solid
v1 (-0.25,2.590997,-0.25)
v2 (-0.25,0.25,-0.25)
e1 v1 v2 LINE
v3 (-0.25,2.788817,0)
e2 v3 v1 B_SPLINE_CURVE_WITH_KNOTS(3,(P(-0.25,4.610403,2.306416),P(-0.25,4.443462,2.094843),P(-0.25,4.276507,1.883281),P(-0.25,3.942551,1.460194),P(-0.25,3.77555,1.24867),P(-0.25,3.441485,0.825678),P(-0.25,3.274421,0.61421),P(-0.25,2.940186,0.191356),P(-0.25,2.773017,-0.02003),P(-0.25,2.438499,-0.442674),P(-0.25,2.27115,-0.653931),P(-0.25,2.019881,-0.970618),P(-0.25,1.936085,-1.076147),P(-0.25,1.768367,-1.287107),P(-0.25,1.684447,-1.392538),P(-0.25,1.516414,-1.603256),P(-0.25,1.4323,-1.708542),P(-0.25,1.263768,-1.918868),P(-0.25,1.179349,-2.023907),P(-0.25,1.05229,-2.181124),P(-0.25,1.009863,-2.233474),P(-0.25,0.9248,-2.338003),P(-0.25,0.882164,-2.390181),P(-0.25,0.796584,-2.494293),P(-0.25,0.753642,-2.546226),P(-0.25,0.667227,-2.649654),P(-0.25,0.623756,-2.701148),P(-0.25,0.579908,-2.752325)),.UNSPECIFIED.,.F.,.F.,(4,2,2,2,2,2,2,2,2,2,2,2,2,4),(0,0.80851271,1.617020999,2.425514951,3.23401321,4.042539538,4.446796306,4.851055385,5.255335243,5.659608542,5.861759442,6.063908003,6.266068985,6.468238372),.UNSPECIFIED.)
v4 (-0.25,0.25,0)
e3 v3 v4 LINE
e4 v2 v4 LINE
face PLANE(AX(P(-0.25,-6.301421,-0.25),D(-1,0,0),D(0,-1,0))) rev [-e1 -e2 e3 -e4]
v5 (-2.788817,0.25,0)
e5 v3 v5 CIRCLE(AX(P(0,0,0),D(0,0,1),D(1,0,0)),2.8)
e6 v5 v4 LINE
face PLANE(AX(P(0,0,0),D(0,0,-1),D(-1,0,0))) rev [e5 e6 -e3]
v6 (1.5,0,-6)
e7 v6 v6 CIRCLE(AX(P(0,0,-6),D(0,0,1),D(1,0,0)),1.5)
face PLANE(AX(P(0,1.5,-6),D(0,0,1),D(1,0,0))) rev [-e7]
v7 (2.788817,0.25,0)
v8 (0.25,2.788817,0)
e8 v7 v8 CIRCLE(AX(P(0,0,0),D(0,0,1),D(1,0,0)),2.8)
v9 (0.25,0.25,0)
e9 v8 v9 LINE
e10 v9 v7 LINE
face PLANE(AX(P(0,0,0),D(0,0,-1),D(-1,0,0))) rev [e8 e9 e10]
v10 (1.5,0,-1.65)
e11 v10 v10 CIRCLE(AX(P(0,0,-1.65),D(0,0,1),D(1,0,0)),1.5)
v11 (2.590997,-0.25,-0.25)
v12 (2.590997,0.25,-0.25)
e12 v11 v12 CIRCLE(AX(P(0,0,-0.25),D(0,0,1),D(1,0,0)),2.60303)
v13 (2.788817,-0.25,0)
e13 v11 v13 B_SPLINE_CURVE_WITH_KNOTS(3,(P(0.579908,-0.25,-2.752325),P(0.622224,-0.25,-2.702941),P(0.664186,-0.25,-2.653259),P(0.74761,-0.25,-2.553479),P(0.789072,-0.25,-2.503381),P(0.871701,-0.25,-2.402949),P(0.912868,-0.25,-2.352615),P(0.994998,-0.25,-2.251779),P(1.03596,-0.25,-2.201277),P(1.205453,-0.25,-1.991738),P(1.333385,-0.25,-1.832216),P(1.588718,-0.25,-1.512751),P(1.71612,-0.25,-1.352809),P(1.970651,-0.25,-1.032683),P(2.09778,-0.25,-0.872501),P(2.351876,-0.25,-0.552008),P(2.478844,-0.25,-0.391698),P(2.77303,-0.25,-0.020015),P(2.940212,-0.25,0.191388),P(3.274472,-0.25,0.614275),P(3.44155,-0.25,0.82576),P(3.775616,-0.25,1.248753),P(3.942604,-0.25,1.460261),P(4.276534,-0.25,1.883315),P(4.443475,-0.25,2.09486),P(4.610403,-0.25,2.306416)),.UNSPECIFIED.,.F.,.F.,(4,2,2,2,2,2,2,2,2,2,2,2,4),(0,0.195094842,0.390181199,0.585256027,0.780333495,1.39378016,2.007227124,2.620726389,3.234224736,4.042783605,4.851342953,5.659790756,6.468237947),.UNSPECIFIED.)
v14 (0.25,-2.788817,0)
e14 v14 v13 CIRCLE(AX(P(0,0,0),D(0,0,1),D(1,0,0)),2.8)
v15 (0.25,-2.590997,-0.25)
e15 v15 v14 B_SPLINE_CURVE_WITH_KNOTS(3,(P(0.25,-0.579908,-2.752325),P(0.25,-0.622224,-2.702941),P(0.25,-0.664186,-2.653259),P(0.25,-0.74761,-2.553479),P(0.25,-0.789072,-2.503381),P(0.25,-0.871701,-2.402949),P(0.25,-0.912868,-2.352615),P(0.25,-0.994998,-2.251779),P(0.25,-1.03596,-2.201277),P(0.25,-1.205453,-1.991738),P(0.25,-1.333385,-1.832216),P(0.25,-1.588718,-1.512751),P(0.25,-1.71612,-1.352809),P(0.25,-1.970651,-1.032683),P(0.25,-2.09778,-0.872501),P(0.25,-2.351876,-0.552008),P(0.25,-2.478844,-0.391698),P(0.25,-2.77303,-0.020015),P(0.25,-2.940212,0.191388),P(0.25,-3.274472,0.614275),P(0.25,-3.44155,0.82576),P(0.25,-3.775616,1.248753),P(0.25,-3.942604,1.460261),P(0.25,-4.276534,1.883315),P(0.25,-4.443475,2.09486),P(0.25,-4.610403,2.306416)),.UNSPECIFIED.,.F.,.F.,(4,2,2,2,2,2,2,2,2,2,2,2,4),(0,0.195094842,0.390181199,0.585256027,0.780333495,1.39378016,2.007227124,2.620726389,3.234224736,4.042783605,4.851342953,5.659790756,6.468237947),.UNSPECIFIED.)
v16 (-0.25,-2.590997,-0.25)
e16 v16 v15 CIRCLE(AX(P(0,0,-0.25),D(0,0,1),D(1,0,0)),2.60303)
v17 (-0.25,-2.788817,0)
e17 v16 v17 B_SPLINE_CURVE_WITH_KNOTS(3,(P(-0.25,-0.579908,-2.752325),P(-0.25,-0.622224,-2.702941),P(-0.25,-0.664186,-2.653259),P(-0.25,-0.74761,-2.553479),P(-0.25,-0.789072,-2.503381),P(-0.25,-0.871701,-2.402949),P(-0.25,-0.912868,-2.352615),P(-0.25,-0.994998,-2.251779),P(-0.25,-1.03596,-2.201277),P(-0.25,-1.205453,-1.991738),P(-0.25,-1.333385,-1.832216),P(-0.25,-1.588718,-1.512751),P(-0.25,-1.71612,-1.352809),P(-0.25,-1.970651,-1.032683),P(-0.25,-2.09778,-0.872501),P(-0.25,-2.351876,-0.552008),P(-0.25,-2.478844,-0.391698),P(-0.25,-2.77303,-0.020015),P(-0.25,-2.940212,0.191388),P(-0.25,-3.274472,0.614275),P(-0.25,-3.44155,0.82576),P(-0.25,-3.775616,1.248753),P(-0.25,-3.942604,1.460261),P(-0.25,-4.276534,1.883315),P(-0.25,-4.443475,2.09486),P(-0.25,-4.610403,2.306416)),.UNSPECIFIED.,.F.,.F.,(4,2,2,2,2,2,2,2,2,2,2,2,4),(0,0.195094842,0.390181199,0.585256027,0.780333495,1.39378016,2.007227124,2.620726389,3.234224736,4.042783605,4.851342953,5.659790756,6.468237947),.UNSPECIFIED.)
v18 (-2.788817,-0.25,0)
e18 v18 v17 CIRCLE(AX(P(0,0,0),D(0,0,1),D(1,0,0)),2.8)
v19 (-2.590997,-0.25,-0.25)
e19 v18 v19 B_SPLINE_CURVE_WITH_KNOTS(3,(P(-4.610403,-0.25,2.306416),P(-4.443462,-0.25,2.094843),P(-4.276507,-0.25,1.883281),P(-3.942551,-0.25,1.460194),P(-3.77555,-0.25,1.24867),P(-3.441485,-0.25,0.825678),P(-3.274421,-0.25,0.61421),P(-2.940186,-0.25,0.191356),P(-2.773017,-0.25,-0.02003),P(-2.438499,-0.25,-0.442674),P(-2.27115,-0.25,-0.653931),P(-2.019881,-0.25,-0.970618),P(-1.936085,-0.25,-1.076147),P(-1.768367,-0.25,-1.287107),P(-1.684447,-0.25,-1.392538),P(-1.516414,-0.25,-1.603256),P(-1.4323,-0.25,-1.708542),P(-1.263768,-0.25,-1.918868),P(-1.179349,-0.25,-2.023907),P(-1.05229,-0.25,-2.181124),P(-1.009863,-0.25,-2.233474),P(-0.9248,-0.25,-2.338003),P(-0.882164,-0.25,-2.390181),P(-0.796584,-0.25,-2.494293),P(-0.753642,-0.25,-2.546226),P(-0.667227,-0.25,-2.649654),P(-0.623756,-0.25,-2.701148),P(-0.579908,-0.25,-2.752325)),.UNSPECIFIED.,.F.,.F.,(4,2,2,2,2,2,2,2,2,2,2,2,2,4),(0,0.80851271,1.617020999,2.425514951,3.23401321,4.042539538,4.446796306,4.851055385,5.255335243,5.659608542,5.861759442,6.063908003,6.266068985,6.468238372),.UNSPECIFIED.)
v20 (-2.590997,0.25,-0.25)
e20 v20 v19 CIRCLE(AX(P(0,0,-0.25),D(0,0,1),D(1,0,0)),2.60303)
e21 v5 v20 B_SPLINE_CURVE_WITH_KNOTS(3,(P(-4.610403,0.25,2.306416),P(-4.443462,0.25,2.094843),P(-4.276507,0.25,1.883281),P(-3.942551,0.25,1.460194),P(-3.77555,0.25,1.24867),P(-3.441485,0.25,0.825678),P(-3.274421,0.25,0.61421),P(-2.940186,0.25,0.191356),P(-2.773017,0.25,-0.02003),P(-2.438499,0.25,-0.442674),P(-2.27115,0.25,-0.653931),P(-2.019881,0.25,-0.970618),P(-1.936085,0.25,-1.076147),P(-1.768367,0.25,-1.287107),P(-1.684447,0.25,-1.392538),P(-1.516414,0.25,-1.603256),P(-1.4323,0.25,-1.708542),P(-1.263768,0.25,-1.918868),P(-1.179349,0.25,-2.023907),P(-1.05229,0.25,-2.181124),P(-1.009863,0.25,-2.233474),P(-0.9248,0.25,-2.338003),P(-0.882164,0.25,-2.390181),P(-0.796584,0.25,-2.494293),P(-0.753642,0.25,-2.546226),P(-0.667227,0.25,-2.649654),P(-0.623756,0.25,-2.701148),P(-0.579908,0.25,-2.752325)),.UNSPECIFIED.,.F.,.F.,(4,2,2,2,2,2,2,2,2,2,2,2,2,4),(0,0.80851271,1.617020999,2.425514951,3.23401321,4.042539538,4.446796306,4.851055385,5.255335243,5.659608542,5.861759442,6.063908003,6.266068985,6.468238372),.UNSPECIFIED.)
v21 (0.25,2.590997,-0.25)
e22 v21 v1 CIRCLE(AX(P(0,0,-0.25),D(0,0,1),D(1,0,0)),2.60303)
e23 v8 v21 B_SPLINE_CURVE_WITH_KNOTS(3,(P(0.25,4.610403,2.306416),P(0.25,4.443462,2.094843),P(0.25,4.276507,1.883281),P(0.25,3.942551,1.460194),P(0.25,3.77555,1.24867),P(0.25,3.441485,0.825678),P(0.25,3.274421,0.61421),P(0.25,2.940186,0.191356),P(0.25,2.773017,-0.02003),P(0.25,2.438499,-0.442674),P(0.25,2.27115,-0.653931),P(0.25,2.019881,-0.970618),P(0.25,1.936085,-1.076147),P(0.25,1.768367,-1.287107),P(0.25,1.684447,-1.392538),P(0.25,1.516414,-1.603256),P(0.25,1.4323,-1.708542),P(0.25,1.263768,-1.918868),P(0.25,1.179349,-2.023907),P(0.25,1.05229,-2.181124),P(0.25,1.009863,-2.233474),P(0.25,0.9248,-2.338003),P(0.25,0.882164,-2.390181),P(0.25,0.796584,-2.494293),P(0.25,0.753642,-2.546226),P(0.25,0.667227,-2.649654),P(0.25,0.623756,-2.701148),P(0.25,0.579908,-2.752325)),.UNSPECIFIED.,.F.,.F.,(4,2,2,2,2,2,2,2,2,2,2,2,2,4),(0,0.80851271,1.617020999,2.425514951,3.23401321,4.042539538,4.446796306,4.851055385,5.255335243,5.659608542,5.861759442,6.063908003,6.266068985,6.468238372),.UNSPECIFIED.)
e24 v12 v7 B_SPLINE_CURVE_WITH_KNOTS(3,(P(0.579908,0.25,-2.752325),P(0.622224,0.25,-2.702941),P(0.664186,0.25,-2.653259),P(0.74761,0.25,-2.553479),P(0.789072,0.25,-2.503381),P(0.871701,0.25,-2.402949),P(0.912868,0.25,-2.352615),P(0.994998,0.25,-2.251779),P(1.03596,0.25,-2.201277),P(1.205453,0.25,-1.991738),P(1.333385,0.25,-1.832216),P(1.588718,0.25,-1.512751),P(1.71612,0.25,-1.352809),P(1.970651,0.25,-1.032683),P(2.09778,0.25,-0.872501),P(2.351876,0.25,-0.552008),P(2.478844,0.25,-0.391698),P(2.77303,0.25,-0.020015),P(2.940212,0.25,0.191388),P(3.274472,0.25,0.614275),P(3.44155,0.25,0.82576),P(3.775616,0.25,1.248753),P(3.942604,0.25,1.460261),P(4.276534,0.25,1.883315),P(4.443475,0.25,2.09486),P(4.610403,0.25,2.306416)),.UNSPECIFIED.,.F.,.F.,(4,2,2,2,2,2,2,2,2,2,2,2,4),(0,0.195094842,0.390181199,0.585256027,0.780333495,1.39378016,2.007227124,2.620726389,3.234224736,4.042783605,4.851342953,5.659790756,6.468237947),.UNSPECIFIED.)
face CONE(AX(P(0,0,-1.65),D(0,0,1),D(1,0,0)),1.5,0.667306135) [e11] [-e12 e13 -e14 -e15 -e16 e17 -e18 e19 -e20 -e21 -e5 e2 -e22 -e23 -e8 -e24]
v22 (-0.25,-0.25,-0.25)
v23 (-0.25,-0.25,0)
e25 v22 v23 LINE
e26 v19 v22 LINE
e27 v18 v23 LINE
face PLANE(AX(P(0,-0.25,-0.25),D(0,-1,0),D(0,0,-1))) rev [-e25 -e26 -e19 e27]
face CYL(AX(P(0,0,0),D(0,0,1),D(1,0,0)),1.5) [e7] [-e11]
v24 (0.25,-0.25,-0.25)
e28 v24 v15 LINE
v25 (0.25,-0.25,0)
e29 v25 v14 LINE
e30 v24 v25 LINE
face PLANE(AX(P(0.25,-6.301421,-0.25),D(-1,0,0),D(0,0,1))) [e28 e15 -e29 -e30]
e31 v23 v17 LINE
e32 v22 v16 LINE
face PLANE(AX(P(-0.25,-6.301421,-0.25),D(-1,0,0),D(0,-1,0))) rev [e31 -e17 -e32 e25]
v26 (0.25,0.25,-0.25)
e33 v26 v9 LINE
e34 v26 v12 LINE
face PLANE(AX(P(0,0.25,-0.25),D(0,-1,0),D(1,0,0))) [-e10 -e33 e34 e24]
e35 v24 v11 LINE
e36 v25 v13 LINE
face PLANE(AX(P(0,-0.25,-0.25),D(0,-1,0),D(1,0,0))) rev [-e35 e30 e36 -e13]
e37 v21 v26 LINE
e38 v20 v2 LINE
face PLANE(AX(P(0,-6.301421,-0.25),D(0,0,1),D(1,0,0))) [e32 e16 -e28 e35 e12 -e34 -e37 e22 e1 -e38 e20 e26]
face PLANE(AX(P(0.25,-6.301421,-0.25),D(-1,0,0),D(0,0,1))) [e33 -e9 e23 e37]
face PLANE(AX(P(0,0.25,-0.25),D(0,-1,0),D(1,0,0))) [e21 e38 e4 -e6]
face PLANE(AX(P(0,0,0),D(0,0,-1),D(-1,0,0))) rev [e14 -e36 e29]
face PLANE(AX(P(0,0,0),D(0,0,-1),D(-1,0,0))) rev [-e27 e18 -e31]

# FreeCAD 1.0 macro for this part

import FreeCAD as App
import Part
import Sketcher
Q = App.Units.Quantity

doc = App.newDocument("Part")
params = doc.addObject("Spreadsheet::Sheet", "Params")
for row, (alias, value) in enumerate([
    ("sketch1_height", "6 mm"),
    ("sketch1_width", "2.8 mm"),
    ("sketch1_width2", "1.5 mm"),
    ("sketch1_height2", "4.35 mm"),
    ("revolution_angle", "360 deg"),
    ("sketch2_width", "2.55 mm"),
    ("pocket1_length", "0.25 mm"),
], start=1):
    params.set(f"A{row}", alias)
    params.set(f"B{row}", "=" + value)
    params.setAlias(f"B{row}", alias)

body = doc.addObject("PartDesign::Body", "Body")

sketch1 = body.newObject("Sketcher::SketchObject", "Sketch")
sketch1.AttachmentSupport = (doc.getObject("YZ_Plane"), [""])
sketch1.MapMode = "FlatFace"
sketch1.addGeometry(Part.LineSegment(App.Vector(2.8, 0, 0), App.Vector(0, 0, 0)), False)
sketch1.addGeometry(Part.LineSegment(App.Vector(0, 0, 0), App.Vector(0, -6, 0)), False)
sketch1.addGeometry(Part.LineSegment(App.Vector(0, -6, 0), App.Vector(1.5, -6, 0)), False)
sketch1.addGeometry(Part.LineSegment(App.Vector(1.5, -6, 0), App.Vector(1.5, -1.6, 0)), False)
sketch1.addGeometry(Part.LineSegment(App.Vector(1.5, -1.6, 0), App.Vector(2.8, 0, 0)), False)
sketch1.addConstraint(Sketcher.Constraint("Coincident", 0, 2, 1, 1))
sketch1.addConstraint(Sketcher.Constraint("Coincident", 1, 2, 2, 1))
sketch1.addConstraint(Sketcher.Constraint("Coincident", 2, 2, 3, 1))
sketch1.addConstraint(Sketcher.Constraint("Coincident", 3, 2, 4, 1))
sketch1.addConstraint(Sketcher.Constraint("Coincident", 4, 2, 0, 1))
sketch1.addConstraint(Sketcher.Constraint("Horizontal", 0))
sketch1.addConstraint(Sketcher.Constraint("Vertical", 1))
sketch1.addConstraint(Sketcher.Constraint("Horizontal", 2))
sketch1.addConstraint(Sketcher.Constraint("Vertical", 3))
sketch1.addConstraint(Sketcher.Constraint("Coincident", 0, 2, -1, 1))
sketch1.addConstraint(Sketcher.Constraint("DistanceY", 1, 2, 1, 1, Q("6 mm")))
sketch1.addConstraint(Sketcher.Constraint("DistanceX", 0, 2, 0, 1, Q("2.8 mm")))
sketch1.addConstraint(Sketcher.Constraint("DistanceX", 2, 1, 2, 2, Q("1.5 mm")))
sketch1.addConstraint(Sketcher.Constraint("DistanceY", 3, 1, 3, 2, Q("4.35 mm")))
sketch1.setExpression("Constraints[10]", "Params.sketch1_height")
sketch1.setExpression("Constraints[11]", "Params.sketch1_width")
sketch1.setExpression("Constraints[12]", "Params.sketch1_width2")
sketch1.setExpression("Constraints[13]", "Params.sketch1_height2")
revolution = body.newObject("PartDesign::Revolution", "Revolution")
revolution.Profile = sketch1
revolution.ReferenceAxis = (sketch1, ["V_Axis"])
revolution.setExpression("Angle", "Params.revolution_angle")

sketch2 = body.newObject("Sketcher::SketchObject", "Sketch001")
sketch2.AttachmentSupport = (doc.getObject("XY_Plane"), [""])
sketch2.MapMode = "FlatFace"
sketch2.addGeometry(Part.LineSegment(App.Vector(-0.25, 2.8, 0), App.Vector(-0.25, 0.25, 0)), False)
sketch2.addGeometry(Part.LineSegment(App.Vector(-0.25, 0.25, 0), App.Vector(-2.8, 0.25, 0)), False)
sketch2.addGeometry(Part.LineSegment(App.Vector(-2.8, 0.25, 0), App.Vector(-3.26, -0.03, 0)), False)
sketch2.addGeometry(Part.LineSegment(App.Vector(-3.26, -0.03, 0), App.Vector(-2.8, -0.25, 0)), False)
sketch2.addGeometry(Part.LineSegment(App.Vector(-2.8, -0.25, 0), App.Vector(-0.25, -0.25, 0)), False)
sketch2.addGeometry(Part.LineSegment(App.Vector(-0.25, -0.25, 0), App.Vector(-0.25, -2.8, 0)), False)
sketch2.addGeometry(Part.LineSegment(App.Vector(-0.25, -2.8, 0), App.Vector(0.12, -3.42, 0)), False)
sketch2.addGeometry(Part.LineSegment(App.Vector(0.12, -3.42, 0), App.Vector(0.25, -2.8, 0)), False)
sketch2.addGeometry(Part.LineSegment(App.Vector(0.25, -2.8, 0), App.Vector(0.25, -0.25, 0)), False)
sketch2.addGeometry(Part.LineSegment(App.Vector(0.25, -0.25, 0), App.Vector(2.8, -0.25, 0)), False)
sketch2.addGeometry(Part.LineSegment(App.Vector(2.8, -0.25, 0), App.Vector(3.21, 0, 0)), False)
sketch2.addGeometry(Part.LineSegment(App.Vector(3.21, 0, 0), App.Vector(2.8, 0.25, 0)), False)
sketch2.addGeometry(Part.LineSegment(App.Vector(2.8, 0.25, 0), App.Vector(0.25, 0.25, 0)), False)
sketch2.addGeometry(Part.LineSegment(App.Vector(0.25, 0.25, 0), App.Vector(0.25, 2.8, 0)), False)
sketch2.addGeometry(Part.LineSegment(App.Vector(0.25, 2.8, 0), App.Vector(0, 3.1, 0)), False)
sketch2.addGeometry(Part.LineSegment(App.Vector(0, 3.1, 0), App.Vector(-0.25, 2.8, 0)), False)
sketch2.addConstraint(Sketcher.Constraint("Coincident", 0, 2, 1, 1))
sketch2.addConstraint(Sketcher.Constraint("Coincident", 1, 2, 2, 1))
sketch2.addConstraint(Sketcher.Constraint("Coincident", 2, 2, 3, 1))
sketch2.addConstraint(Sketcher.Constraint("Coincident", 3, 2, 4, 1))
sketch2.addConstraint(Sketcher.Constraint("Coincident", 4, 2, 5, 1))
sketch2.addConstraint(Sketcher.Constraint("Coincident", 5, 2, 6, 1))
sketch2.addConstraint(Sketcher.Constraint("Coincident", 6, 2, 7, 1))
sketch2.addConstraint(Sketcher.Constraint("Coincident", 7, 2, 8, 1))
sketch2.addConstraint(Sketcher.Constraint("Coincident", 8, 2, 9, 1))
sketch2.addConstraint(Sketcher.Constraint("Coincident", 9, 2, 10, 1))
sketch2.addConstraint(Sketcher.Constraint("Coincident", 10, 2, 11, 1))
sketch2.addConstraint(Sketcher.Constraint("Coincident", 11, 2, 12, 1))
sketch2.addConstraint(Sketcher.Constraint("Coincident", 12, 2, 13, 1))
sketch2.addConstraint(Sketcher.Constraint("Coincident", 13, 2, 14, 1))
sketch2.addConstraint(Sketcher.Constraint("Coincident", 14, 2, 15, 1))
sketch2.addConstraint(Sketcher.Constraint("Coincident", 15, 2, 0, 1))
sketch2.addConstraint(Sketcher.Constraint("Vertical", 0))
sketch2.addConstraint(Sketcher.Constraint("Horizontal", 1))
sketch2.addConstraint(Sketcher.Constraint("Horizontal", 4))
sketch2.addConstraint(Sketcher.Constraint("Vertical", 5))
sketch2.addConstraint(Sketcher.Constraint("Vertical", 8))
sketch2.addConstraint(Sketcher.Constraint("Horizontal", 9))
sketch2.addConstraint(Sketcher.Constraint("Horizontal", 12))
sketch2.addConstraint(Sketcher.Constraint("Vertical", 13))
sketch2.addConstraint(Sketcher.Constraint("Symmetric", 0, 2, 8, 2, -1, 1))
sketch2.addConstraint(Sketcher.Constraint("Symmetric", 3, 2, 11, 2, -1, 1))
sketch2.addConstraint(Sketcher.Constraint("Symmetric", 5, 2, 13, 2, -1, 1))
sketch2.addConstraint(Sketcher.Constraint("Symmetric", 5, 2, 7, 2, -2))
sketch2.addConstraint(Sketcher.Constraint("Symmetric", 3, 2, 9, 2, -2))
sketch2.addConstraint(Sketcher.Constraint("PointOnObject", 10, 2, -1))
sketch2.addConstraint(Sketcher.Constraint("PointOnObject", 14, 2, -2))
sketch2.addConstraint(Sketcher.Constraint("Perpendicular", 2, 6))
sketch2.addConstraint(Sketcher.Constraint("Perpendicular", 6, 10))
sketch2.addConstraint(Sketcher.Constraint("Horizontal", 13, 2, 15, 2))
sketch2.addConstraint(Sketcher.Constraint("Vertical", 1, 2, 3, 2))
sketch2.addConstraint(Sketcher.Constraint("Equal", 12, 0))
sketch2.addConstraint(Sketcher.Constraint("DistanceX", 1, 2, 1, 1, Q("2.55 mm")))
sketch2.addConstraint(Sketcher.Constraint("DistanceX", 1, 2, -1, 1, Q("2.8 mm")))
sketch2.addConstraint(Sketcher.Constraint("DistanceY", 5, 2, -1, 1, Q("2.8 mm")))
sketch2.addConstraint(Sketcher.Constraint("DistanceX", -1, 1, 6, 2, Q("0.125 mm")))
sketch2.addConstraint(Sketcher.Constraint("Distance", 3, Q("0.507519 mm")))
sketch2.addConstraint(Sketcher.Constraint("Distance", 6, Q("0.721761 mm")))
sketch2.addConstraint(Sketcher.Constraint("Distance", 14, Q("0.392948 mm")))
sketch2.setExpression("Constraints[36]", "Params.sketch2_width")
pocket1 = body.newObject("PartDesign::Pocket", "Pocket")
pocket1.Profile = sketch2
pocket1.setExpression("Length", "Params.pocket1_length")

doc.recompute()
